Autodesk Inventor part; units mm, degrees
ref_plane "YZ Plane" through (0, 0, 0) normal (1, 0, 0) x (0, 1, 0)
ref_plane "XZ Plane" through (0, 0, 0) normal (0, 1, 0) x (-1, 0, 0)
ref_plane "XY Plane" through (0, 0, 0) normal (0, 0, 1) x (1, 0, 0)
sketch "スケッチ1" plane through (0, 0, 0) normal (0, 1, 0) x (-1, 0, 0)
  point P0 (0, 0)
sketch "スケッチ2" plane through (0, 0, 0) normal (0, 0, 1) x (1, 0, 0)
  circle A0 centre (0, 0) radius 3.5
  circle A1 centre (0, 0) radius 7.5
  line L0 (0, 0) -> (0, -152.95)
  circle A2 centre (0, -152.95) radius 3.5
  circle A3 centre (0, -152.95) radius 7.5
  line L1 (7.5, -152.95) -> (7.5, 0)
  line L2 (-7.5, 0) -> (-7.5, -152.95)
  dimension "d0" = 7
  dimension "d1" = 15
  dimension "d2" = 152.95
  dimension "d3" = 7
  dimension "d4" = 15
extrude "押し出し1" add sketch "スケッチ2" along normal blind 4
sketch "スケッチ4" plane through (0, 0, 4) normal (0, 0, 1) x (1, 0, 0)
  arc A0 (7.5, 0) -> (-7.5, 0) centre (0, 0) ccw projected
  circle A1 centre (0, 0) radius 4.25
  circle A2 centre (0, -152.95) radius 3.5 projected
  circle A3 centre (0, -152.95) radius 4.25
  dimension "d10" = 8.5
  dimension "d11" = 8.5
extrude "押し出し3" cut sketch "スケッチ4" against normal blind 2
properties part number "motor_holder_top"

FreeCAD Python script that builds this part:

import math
import FreeCAD as App
import Part
import Sketcher
from FreeCAD import Vector
Q = App.Units.Quantity

doc = App.newDocument("Part")
body = doc.addObject("PartDesign::Body", "Body")

# Sketch on XY plane
sketch1 = body.newObject("Sketcher::SketchObject", "Sketch")
sketch1.AttachmentSupport = (doc.getObject("XY_Plane"), [""])
sketch1.MapMode = "FlatFace"
sketch1.addGeometry(Part.ArcOfCircle(Part.Circle(Vector(0, 0, 0), Vector(0, 0, 1), 7.5), math.radians(0), math.radians(180)), False)
sketch1.addGeometry(Part.LineSegment(Vector(-7.5, 0, 0), Vector(-7.5, -152.95, 0)), False)
sketch1.addGeometry(Part.ArcOfCircle(Part.Circle(Vector(0, -152.95, 0), Vector(0, 0, 1), 7.5), math.radians(180), math.radians(360)), False)
sketch1.addGeometry(Part.LineSegment(Vector(7.5, -152.95, 0), Vector(7.5, 0, 0)), False)
sketch1.addGeometry(Part.Circle(Vector(0, 0, 0), Vector(0, 0, 1), 3.5), False)
sketch1.addGeometry(Part.Circle(Vector(0, -152.95, 0), Vector(0, 0, 1), 3.5), False)
sketch1.addConstraint(Sketcher.Constraint("Tangent", 0, 2, 1, 1))
sketch1.addConstraint(Sketcher.Constraint("Tangent", 1, 2, 2, 1))
sketch1.addConstraint(Sketcher.Constraint("Tangent", 2, 2, 3, 1))
sketch1.addConstraint(Sketcher.Constraint("Tangent", 3, 2, 0, 1))
sketch1.addConstraint(Sketcher.Constraint("Vertical", 1))
sketch1.addConstraint(Sketcher.Constraint("Vertical", 3))
sketch1.addConstraint(Sketcher.Constraint("Coincident", 0, 3, -1, 1))
sketch1.addConstraint(Sketcher.Constraint("Coincident", 4, 3, -1, 1))
sketch1.addConstraint(Sketcher.Constraint("Coincident", 5, 3, 2, 3))
sketch1.addConstraint(Sketcher.Constraint("Equal", 4, 5))
sketch1.addConstraint(Sketcher.Constraint("Diameter", 4, Q("7 mm")))
sketch1.addConstraint(Sketcher.Constraint("Radius", 0, Q("7.5 mm")))
sketch1.addConstraint(Sketcher.Constraint("DistanceY", 1, 2, 1, 1, Q("152.95 mm")))
pad1 = body.newObject("PartDesign::Pad", "Pad")
pad1.Profile = sketch1
pad1.Length = 4

# Sketch on XY plane
sketch2 = body.newObject("Sketcher::SketchObject", "Sketch001")
sketch2.AttachmentSupport = (doc.getObject("XY_Plane"), [""])
sketch2.MapMode = "FlatFace"
sketch2.AttachmentOffset = App.Placement(Vector(0, 0, 4), App.Rotation())
sketch2.addGeometry(Part.Circle(Vector(0, 0, 0), Vector(0, 0, 1), 4.25), False)
sketch2.addGeometry(Part.Circle(Vector(0, -152.95, 0), Vector(0, 0, 1), 4.25), False)
sketch2.addGeometry(Part.Circle(Vector(0, -152.95, 0), Vector(0, 0, 1), 3.5), False)
sketch2.addConstraint(Sketcher.Constraint("Coincident", 0, 3, -1, 1))
sketch2.addConstraint(Sketcher.Constraint("Coincident", 2, 3, 1, 3))
sketch2.addConstraint(Sketcher.Constraint("Equal", 0, 1))
sketch2.addConstraint(Sketcher.Constraint("PointOnObject", 1, 3, -2))
sketch2.addConstraint(Sketcher.Constraint("Diameter", 0, Q("8.5 mm")))
sketch2.addConstraint(Sketcher.Constraint("Diameter", 2, Q("7 mm")))
sketch2.addConstraint(Sketcher.Constraint("DistanceY", 1, 3, -1, 1, Q("152.95 mm")))
pocket1 = body.newObject("PartDesign::Pocket", "Pocket")
pocket1.Profile = sketch2
pocket1.Length = 2

doc.recompute()
